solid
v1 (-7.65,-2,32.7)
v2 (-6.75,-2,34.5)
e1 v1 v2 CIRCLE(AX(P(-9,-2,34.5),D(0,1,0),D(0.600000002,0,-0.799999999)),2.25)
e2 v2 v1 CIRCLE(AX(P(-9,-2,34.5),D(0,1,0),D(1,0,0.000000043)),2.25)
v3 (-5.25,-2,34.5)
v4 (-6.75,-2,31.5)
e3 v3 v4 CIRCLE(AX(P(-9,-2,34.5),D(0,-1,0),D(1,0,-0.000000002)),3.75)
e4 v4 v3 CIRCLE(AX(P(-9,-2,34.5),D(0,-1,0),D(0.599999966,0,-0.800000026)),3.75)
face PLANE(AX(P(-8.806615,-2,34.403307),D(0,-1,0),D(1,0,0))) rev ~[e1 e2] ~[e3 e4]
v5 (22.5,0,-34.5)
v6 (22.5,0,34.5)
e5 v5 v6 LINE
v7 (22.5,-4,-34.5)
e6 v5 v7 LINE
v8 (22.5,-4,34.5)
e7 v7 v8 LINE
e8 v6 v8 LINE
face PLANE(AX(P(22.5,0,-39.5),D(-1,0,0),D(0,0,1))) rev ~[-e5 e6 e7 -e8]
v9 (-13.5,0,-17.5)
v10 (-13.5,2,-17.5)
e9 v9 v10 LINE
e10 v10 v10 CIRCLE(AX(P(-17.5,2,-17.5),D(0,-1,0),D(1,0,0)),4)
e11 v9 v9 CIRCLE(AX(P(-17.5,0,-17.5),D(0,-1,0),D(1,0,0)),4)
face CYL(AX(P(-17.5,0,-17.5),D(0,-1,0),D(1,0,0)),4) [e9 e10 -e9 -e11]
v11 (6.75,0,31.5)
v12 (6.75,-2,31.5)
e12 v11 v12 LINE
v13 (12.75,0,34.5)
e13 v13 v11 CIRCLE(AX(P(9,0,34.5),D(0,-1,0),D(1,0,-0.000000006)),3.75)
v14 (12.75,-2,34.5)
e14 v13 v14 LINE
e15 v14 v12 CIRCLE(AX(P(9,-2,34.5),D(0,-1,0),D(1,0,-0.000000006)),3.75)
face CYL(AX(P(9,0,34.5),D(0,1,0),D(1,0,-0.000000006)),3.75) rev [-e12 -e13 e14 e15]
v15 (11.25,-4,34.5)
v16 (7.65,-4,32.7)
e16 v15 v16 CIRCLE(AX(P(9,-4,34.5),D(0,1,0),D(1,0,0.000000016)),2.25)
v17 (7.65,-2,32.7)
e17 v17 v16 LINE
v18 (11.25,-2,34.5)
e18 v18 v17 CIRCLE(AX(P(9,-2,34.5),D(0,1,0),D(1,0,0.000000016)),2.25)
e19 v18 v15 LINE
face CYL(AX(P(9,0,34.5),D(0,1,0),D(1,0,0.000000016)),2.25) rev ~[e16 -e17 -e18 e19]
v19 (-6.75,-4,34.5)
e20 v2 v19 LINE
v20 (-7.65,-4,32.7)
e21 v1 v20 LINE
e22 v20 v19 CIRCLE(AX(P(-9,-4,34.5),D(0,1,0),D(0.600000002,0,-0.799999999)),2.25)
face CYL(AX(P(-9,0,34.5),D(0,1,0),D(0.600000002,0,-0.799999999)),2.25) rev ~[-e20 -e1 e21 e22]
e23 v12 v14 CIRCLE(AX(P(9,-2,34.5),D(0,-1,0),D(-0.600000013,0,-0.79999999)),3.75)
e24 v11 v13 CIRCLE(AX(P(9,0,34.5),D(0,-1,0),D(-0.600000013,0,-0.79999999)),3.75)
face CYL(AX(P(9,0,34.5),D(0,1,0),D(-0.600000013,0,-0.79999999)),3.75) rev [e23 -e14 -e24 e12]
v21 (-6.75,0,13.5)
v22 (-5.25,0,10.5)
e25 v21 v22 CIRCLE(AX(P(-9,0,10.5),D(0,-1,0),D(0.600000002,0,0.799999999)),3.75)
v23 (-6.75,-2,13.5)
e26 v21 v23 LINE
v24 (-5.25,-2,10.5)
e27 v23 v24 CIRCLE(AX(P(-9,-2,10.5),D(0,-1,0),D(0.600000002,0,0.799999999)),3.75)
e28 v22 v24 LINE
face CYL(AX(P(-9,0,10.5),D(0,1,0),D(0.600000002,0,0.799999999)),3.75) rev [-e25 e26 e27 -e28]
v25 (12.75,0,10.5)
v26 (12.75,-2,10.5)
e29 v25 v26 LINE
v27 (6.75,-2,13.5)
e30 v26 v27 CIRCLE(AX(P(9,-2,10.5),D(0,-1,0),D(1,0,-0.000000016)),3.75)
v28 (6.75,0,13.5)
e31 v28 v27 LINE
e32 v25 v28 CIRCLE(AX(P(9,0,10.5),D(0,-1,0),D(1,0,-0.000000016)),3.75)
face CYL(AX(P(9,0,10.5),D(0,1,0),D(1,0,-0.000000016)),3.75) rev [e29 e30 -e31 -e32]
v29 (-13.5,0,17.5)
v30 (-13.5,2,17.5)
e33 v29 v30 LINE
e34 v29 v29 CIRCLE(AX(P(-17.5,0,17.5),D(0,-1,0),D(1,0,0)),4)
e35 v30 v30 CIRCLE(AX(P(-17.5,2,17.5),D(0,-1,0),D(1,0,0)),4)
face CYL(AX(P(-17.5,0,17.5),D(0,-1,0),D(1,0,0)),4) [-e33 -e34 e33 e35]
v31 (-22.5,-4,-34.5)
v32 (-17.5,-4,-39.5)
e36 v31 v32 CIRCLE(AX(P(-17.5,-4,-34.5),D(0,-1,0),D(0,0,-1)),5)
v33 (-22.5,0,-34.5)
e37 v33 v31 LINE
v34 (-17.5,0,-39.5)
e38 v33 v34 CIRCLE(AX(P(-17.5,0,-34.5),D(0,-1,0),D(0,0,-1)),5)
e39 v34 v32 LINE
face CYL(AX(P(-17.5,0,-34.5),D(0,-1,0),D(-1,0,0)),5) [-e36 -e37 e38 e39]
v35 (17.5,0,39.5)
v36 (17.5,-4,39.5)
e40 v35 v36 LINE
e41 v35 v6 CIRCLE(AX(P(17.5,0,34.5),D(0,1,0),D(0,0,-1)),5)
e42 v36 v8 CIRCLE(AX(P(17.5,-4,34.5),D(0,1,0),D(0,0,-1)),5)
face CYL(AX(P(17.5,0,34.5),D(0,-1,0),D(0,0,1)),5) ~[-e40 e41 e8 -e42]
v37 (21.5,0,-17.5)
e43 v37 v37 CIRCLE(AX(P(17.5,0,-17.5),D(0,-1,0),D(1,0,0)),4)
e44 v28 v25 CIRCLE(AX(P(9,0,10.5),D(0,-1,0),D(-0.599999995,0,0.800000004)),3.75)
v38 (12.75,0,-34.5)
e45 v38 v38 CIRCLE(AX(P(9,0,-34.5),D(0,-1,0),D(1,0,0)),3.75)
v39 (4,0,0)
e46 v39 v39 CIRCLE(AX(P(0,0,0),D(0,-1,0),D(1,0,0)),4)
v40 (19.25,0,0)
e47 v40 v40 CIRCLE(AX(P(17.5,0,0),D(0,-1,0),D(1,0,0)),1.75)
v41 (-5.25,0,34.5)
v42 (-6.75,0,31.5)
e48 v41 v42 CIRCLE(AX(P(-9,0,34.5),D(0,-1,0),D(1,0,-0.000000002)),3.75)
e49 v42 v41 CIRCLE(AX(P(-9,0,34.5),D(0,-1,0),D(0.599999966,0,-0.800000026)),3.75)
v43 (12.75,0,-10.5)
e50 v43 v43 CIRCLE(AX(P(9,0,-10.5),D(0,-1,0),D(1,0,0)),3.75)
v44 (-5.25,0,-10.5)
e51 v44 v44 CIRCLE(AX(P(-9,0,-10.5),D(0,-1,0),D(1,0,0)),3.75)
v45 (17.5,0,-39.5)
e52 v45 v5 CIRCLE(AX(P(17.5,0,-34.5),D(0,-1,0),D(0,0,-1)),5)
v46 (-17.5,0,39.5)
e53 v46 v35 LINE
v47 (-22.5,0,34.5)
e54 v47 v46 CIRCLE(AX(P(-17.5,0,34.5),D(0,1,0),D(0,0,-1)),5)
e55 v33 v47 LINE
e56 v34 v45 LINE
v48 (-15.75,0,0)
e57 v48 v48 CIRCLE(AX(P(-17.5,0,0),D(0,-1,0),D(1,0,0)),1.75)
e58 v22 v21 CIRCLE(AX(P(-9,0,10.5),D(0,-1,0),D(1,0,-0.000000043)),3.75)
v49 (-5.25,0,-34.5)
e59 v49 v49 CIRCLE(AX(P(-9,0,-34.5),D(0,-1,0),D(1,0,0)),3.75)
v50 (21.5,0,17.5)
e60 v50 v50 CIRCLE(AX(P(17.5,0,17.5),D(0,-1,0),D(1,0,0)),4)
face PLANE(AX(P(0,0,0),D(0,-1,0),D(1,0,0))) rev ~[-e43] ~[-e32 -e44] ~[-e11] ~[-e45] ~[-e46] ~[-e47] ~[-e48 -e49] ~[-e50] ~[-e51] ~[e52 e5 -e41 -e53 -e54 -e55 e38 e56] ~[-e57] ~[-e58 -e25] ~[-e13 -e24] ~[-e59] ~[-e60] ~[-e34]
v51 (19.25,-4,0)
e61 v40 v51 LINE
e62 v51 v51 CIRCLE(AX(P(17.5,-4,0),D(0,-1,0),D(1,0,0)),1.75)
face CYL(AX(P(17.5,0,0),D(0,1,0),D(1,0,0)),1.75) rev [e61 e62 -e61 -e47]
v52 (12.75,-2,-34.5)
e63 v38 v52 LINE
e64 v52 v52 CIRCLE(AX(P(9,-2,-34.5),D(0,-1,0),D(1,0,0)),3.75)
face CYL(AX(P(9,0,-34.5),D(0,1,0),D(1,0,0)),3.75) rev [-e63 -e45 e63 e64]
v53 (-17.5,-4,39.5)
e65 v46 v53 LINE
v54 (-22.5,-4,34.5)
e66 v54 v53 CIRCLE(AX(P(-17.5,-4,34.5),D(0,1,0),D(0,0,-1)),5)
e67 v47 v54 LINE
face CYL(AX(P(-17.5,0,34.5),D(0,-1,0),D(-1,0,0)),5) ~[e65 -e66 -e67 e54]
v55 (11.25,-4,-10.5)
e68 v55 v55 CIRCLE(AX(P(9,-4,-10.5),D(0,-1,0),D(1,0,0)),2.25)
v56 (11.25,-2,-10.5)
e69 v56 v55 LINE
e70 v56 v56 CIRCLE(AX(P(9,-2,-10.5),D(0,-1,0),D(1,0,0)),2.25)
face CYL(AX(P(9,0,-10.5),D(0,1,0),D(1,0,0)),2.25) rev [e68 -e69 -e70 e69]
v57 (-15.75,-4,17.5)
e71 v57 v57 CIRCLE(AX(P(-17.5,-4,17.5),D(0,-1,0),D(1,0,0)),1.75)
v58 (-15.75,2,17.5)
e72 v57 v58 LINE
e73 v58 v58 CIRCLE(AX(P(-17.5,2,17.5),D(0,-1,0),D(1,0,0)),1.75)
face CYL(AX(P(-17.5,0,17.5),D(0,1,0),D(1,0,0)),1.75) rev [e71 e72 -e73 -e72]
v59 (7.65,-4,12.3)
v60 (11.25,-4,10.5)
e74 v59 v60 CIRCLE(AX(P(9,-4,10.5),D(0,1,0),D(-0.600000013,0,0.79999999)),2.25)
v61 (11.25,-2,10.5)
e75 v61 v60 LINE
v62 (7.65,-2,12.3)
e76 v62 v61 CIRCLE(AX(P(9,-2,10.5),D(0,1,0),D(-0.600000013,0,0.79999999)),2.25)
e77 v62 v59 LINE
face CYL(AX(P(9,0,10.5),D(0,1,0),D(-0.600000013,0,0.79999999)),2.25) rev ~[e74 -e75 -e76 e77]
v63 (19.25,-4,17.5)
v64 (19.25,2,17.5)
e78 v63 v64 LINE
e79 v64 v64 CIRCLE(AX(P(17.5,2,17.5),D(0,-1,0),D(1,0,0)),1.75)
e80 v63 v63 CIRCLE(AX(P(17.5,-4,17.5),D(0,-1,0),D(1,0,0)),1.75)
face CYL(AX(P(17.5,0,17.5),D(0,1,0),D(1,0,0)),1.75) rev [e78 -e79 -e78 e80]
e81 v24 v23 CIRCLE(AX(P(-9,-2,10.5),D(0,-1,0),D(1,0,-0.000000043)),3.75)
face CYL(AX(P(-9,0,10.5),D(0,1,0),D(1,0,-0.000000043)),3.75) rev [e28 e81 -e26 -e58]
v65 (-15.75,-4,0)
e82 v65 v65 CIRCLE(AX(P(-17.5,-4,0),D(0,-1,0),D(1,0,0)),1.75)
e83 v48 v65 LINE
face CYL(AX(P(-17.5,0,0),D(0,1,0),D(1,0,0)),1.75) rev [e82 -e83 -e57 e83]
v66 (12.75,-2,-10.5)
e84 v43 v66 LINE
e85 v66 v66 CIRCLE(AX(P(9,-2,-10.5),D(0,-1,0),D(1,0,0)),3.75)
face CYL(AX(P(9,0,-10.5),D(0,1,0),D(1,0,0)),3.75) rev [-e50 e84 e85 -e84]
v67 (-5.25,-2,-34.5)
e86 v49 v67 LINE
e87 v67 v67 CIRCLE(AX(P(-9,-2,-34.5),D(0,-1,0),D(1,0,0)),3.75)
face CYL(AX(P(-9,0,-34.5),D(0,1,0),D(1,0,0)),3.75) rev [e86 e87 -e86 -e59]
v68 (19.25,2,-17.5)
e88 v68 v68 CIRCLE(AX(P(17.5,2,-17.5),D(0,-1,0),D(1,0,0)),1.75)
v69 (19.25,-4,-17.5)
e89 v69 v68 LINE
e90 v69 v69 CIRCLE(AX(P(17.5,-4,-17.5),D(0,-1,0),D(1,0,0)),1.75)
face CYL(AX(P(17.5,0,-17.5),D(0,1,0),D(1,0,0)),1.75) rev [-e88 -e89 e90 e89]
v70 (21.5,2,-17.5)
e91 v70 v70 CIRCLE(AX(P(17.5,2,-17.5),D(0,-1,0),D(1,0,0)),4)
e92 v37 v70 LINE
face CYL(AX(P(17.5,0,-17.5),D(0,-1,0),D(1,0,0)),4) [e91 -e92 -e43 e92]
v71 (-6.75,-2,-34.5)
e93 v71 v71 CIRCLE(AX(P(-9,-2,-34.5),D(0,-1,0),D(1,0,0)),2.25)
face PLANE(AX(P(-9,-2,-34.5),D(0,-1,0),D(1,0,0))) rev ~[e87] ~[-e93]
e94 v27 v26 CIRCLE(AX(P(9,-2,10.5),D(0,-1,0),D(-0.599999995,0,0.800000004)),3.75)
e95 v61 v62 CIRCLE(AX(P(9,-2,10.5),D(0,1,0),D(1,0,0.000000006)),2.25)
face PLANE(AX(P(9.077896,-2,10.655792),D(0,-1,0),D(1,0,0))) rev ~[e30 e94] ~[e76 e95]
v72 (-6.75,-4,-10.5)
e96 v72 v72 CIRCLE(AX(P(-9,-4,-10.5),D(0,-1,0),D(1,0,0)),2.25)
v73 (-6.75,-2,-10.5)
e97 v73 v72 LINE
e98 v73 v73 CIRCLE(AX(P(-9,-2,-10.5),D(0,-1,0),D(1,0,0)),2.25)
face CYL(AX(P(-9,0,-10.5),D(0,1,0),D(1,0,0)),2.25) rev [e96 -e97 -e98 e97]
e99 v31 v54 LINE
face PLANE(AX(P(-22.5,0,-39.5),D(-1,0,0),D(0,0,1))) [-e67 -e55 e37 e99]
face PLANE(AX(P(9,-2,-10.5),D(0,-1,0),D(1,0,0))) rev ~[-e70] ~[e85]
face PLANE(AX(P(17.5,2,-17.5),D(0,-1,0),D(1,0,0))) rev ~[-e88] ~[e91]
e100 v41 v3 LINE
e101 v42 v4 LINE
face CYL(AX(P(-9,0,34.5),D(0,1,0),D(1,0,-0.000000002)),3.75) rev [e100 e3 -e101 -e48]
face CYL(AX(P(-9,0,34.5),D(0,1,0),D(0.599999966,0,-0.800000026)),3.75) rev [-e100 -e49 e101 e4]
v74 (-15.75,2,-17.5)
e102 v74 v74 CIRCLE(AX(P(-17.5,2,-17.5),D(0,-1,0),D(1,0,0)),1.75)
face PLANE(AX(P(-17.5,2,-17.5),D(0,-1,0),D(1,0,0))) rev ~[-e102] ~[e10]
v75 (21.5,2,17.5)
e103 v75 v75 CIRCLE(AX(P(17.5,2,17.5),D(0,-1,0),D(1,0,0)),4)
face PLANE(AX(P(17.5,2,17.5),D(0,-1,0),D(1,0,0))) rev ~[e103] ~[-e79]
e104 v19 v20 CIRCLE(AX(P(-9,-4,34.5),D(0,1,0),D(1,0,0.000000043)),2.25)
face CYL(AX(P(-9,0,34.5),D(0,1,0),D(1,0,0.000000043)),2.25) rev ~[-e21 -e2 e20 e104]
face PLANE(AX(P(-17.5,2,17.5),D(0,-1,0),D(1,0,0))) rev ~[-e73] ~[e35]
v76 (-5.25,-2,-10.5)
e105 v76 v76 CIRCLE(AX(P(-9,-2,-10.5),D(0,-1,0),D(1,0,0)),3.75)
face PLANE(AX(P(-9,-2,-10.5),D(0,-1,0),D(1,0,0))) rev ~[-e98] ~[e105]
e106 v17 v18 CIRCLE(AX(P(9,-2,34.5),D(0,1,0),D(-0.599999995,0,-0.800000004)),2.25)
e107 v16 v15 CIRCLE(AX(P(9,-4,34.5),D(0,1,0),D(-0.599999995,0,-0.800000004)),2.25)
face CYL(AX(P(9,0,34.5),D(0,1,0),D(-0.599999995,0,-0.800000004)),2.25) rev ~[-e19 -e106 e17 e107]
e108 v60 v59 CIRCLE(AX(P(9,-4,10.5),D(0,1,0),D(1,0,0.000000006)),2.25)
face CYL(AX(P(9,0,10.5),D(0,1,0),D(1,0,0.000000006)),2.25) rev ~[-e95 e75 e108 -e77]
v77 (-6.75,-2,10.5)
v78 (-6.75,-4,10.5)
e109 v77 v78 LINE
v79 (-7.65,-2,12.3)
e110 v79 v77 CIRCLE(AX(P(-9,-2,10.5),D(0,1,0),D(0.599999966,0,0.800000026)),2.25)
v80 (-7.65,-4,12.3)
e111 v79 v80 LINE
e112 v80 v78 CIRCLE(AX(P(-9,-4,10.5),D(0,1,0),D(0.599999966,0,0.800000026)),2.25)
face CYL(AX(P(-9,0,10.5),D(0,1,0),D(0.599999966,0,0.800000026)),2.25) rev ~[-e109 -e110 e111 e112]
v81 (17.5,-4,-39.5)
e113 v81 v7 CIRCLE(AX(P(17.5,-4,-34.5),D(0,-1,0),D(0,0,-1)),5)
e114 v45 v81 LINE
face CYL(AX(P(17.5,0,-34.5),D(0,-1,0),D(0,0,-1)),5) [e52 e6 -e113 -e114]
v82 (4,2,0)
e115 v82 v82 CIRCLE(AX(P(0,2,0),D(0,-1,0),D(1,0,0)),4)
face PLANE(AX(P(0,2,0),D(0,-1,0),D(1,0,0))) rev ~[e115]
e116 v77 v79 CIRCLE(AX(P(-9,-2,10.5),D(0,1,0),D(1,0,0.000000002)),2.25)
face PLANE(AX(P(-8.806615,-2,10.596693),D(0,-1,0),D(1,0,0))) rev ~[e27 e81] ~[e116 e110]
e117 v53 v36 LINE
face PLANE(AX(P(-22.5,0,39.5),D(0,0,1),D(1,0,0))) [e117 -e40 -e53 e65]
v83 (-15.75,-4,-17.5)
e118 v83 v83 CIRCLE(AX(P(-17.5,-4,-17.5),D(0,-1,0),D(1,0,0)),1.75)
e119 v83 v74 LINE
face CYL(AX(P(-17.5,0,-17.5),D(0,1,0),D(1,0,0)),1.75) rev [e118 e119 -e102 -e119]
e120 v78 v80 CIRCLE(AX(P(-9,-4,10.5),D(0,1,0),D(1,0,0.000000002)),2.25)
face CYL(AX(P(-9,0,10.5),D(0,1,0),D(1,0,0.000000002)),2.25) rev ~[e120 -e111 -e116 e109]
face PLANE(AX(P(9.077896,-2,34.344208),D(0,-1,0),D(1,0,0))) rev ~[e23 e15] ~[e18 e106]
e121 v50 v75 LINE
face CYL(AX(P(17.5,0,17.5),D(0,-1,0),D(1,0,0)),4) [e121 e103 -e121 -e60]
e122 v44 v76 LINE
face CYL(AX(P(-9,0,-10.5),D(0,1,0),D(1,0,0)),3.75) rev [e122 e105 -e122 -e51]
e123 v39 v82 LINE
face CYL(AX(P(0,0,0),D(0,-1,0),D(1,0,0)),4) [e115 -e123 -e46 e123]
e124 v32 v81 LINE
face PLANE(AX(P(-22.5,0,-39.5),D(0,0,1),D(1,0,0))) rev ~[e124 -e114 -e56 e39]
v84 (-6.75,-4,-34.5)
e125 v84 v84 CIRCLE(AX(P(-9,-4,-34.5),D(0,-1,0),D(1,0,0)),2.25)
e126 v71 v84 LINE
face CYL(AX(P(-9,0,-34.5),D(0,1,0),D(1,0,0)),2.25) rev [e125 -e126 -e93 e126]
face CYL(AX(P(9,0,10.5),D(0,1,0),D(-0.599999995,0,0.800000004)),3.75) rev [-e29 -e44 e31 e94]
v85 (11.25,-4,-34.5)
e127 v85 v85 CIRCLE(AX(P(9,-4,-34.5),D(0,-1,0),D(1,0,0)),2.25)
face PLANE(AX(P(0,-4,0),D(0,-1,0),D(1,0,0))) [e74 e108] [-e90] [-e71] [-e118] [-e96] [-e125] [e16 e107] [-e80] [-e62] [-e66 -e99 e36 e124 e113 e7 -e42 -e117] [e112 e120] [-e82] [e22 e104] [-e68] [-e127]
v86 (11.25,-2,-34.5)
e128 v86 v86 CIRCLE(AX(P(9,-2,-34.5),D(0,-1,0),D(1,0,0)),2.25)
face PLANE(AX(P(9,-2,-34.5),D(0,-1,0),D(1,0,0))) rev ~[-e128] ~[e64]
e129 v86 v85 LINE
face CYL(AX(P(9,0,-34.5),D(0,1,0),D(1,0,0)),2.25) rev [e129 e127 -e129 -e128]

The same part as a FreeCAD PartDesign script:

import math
import FreeCAD as App
import Part
import Sketcher

V = App.Vector


def edges_at(feature, points):
    """Names of the edges that pass closest to the given points."""
    edges = feature.Shape.Edges
    near = lambda p: min(range(len(edges)), key=lambda i: edges[i].distToShape(Part.Vertex(*p))[0])
    return sorted({f"Edge{near(p) + 1}" for p in points})


def add_polygon(sketch, points):
    """Adds a closed chain of lines whose ends are joined by coincident constraints."""
    first, n = sketch.GeometryCount, len(points)
    for a, b in zip(points, points[1:] + points[:1]):
        sketch.addGeometry(Part.LineSegment(App.Vector(*a, 0), App.Vector(*b, 0)), False)
    for i in range(n):
        sketch.addConstraint(Sketcher.Constraint("Coincident", first + i, 2, first + (i + 1) % n, 1))

doc = App.newDocument("Part")
body = doc.addObject("PartDesign::Body", "Body")

sketch1 = body.newObject("Sketcher::SketchObject", "Sketch")
sketch1.AttachmentSupport = (doc.getObject("XZ_Plane"), [""])
sketch1.MapMode = "FlatFace"
add_polygon(sketch1, [(-22.5, 39.5), (-22.5, -39.5), (22.5, -39.5), (22.5, 39.5)])
sketch1.addGeometry(Part.Circle(V(-9, -34.5, 0), V(0, 0, 1), 2.2), False)
sketch1.addGeometry(Part.Circle(V(-17.5, -17.5, 0), V(0, 0, 1), 1.8), False)
sketch1.addGeometry(Part.Circle(V(-17.5, 0, 0), V(0, 0, 1), 1.8), False)
sketch1.addGeometry(Part.Circle(V(-9, -10.5, 0), V(0, 0, 1), 2.2), False)
sketch1.addGeometry(Part.Circle(V(9, -34.5, 0), V(0, 0, 1), 2.2), False)
sketch1.addGeometry(Part.Circle(V(9, -10.5, 0), V(0, 0, 1), 2.2), False)
sketch1.addGeometry(Part.Circle(V(17.5, -17.5, 0), V(0, 0, 1), 1.8), False)
sketch1.addGeometry(Part.Circle(V(17.5, 0, 0), V(0, 0, 1), 1.8), False)
sketch1.addGeometry(Part.Circle(V(-17.5, 17.5, 0), V(0, 0, 1), 1.8), False)
sketch1.addGeometry(Part.ArcOfCircle(Part.Circle(V(-9, 10.5, 0), V(0, 0, 1), 2.2), math.radians(0), math.radians(53)), False)
sketch1.addGeometry(Part.ArcOfCircle(Part.Circle(V(-9, 10.5, 0), V(0, 0, 1), 2.3), math.radians(53), math.radians(360)), False)
sketch1.addGeometry(Part.ArcOfCircle(Part.Circle(V(-9, 34.5, 0), V(0, 0, 1), 2.2), math.radians(-53), math.radians(0)), False)
sketch1.addGeometry(Part.ArcOfCircle(Part.Circle(V(-9, 34.5, 0), V(0, 0, 1), 2.3), math.radians(0), math.radians(307)), False)
sketch1.addGeometry(Part.ArcOfCircle(Part.Circle(V(9, 10.5, 0), V(0, 0, 1), 2.2), math.radians(0), math.radians(127)), False)
sketch1.addGeometry(Part.ArcOfCircle(Part.Circle(V(9, 10.5, 0), V(0, 0, 1), 2.3), math.radians(127), math.radians(360)), False)
sketch1.addGeometry(Part.Circle(V(17.5, 17.5, 0), V(0, 0, 1), 1.8), False)
sketch1.addGeometry(Part.ArcOfCircle(Part.Circle(V(9, 34.5, 0), V(0, 0, 1), 2.3), math.radians(0), math.radians(233)), False)
sketch1.addGeometry(Part.ArcOfCircle(Part.Circle(V(9, 34.5, 0), V(0, 0, 1), 2.2), math.radians(-127), math.radians(0)), False)
sketch1.addConstraint(Sketcher.Constraint("Tangent", 13, 1, 14, 2))
sketch1.addConstraint(Sketcher.Constraint("Coincident", 14, 1, 13, 2))
sketch1.addConstraint(Sketcher.Constraint("Tangent", 15, 1, 16, 2))
sketch1.addConstraint(Sketcher.Constraint("Coincident", 16, 1, 15, 2))
sketch1.addConstraint(Sketcher.Constraint("Tangent", 17, 1, 18, 2))
sketch1.addConstraint(Sketcher.Constraint("Coincident", 18, 1, 17, 2))
sketch1.addConstraint(Sketcher.Constraint("Tangent", 20, 1, 21, 2))
sketch1.addConstraint(Sketcher.Constraint("Coincident", 21, 1, 20, 2))
sketch1.addConstraint(Sketcher.Constraint("Vertical", 0))
sketch1.addConstraint(Sketcher.Constraint("Horizontal", 1))
sketch1.addConstraint(Sketcher.Constraint("Vertical", 2))
sketch1.addConstraint(Sketcher.Constraint("Horizontal", 3))
sketch1.addConstraint(Sketcher.Constraint("Equal", 5, 6))
sketch1.addConstraint(Sketcher.Constraint("Equal", 4, 7))
sketch1.addConstraint(Sketcher.Constraint("Equal", 7, 8))
sketch1.addConstraint(Sketcher.Constraint("Equal", 8, 9))
sketch1.addConstraint(Sketcher.Constraint("Equal", 6, 10))
sketch1.addConstraint(Sketcher.Constraint("Equal", 10, 11))
sketch1.addConstraint(Sketcher.Constraint("Equal", 11, 12))
sketch1.addConstraint(Sketcher.Constraint("Equal", 9, 13))
sketch1.addConstraint(Sketcher.Constraint("Equal", 14, 15))
sketch1.addConstraint(Sketcher.Constraint("Equal", 16, 17))
sketch1.addConstraint(Sketcher.Constraint("Equal", 12, 19))
sketch1.addConstraint(Sketcher.Constraint("Equal", 18, 20))
sketch1.addConstraint(Sketcher.Constraint("Symmetric", 6, 3, 11, 3, -1, 1))
sketch1.addConstraint(Sketcher.Constraint("Symmetric", 10, 3, 12, 3, -1, 1))
sketch1.addConstraint(Sketcher.Constraint("Symmetric", 9, 3, 13, 3, -1, 1))
sketch1.addConstraint(Sketcher.Constraint("Symmetric", 8, 3, 15, 3, -1, 1))
sketch1.addConstraint(Sketcher.Constraint("Symmetric", 7, 3, 17, 3, -1, 1))
sketch1.addConstraint(Sketcher.Constraint("Symmetric", 5, 3, 19, 3, -1, 1))
sketch1.addConstraint(Sketcher.Constraint("Symmetric", 4, 3, 20, 3, -1, 1))
sketch1.addConstraint(Sketcher.Constraint("Symmetric", 0, 2, 2, 2, -1, 1))
sketch1.addConstraint(Sketcher.Constraint("Symmetric", 4, 3, 8, 3, -2))
sketch1.addConstraint(Sketcher.Constraint("Symmetric", 7, 3, 9, 3, -2))
sketch1.addConstraint(Sketcher.Constraint("Symmetric", 5, 3, 10, 3, -2))
sketch1.addConstraint(Sketcher.Constraint("PointOnObject", 6, 3, -1))
sketch1.addConstraint(Sketcher.Constraint("Horizontal", 18, 3, 13, 1))
sketch1.addConstraint(Sketcher.Constraint("Horizontal", 21, 3, 16, 1))
sketch1.addConstraint(Sketcher.Constraint("Horizontal", 13, 1, 17, 1))
sketch1.addConstraint(Sketcher.Constraint("Horizontal", 14, 1, 18, 1))
sketch1.addConstraint(Sketcher.Constraint("Horizontal", 16, 1, 20, 1))
sketch1.addConstraint(Sketcher.Constraint("Horizontal", 15, 1, 21, 1))
sketch1.addConstraint(Sketcher.Constraint("Vertical", 5, 3, 6, 3))
sketch1.addConstraint(Sketcher.Constraint("Vertical", 4, 3, 7, 3))
sketch1.addConstraint(Sketcher.Constraint("Vertical", 14, 1, 15, 1))
sketch1.addConstraint(Sketcher.Constraint("Diameter", 4, 4.5))
sketch1.addConstraint(Sketcher.Constraint("Diameter", 5, 3.5))
sketch1.addConstraint(Sketcher.Constraint("DistanceX", 1, 1, 1, 2, 45.0))
sketch1.addConstraint(Sketcher.Constraint("DistanceY", 0, 2, 0, 1, 79.0))
sketch1.addConstraint(Sketcher.Constraint("DistanceX", 4, 3, -1, 1, 9.0))
sketch1.addConstraint(Sketcher.Constraint("DistanceY", 4, 3, 5, 3, 17.0))
sketch1.addConstraint(Sketcher.Constraint("DistanceY", 5, 3, 7, 3, 7.0))
sketch1.addConstraint(Sketcher.Constraint("DistanceX", 5, 3, 10, 3, 35.0))
sketch1.addConstraint(Sketcher.Constraint("DistanceY", 7, 3, 12, 3, 28.0))
sketch1.addConstraint(Sketcher.Constraint("DistanceY", -1, 1, 14, 1, 12.3))
pad1 = body.newObject("PartDesign::Pad", "Pad")
pad1.Profile = sketch1
pad1.Length = 4

sketch2 = body.newObject("Sketcher::SketchObject", "Sketch001")
sketch2.AttachmentSupport = (doc.getObject("XZ_Plane"), [""])
sketch2.MapMode = "FlatFace"
sketch2.addGeometry(Part.Circle(V(-17.5, 17.5, 0), V(0, 0, 1), 4), False)
sketch2.addGeometry(Part.Circle(V(-17.5, 17.5, 0), V(0, 0, 1), 1.8), False)
sketch2.addGeometry(Part.Circle(V(17.5, 17.5, 0), V(0, 0, 1), 4), False)
sketch2.addGeometry(Part.Circle(V(17.5, 17.5, 0), V(0, 0, 1), 1.8), False)
sketch2.addGeometry(Part.Circle(V(0, 0, 0), V(0, 0, 1), 4), False)
sketch2.addGeometry(Part.Circle(V(-17.5, -17.5, 0), V(0, 0, 1), 4), False)
sketch2.addGeometry(Part.Circle(V(-17.5, -17.5, 0), V(0, 0, 1), 1.8), False)
sketch2.addGeometry(Part.Circle(V(17.5, -17.5, 0), V(0, 0, 1), 4), False)
sketch2.addGeometry(Part.Circle(V(17.5, -17.5, 0), V(0, 0, 1), 1.8), False)
sketch2.addConstraint(Sketcher.Constraint("Coincident", 4, 3, -1, 1))
sketch2.addConstraint(Sketcher.Constraint("Coincident", 1, 3, 0, 3))
sketch2.addConstraint(Sketcher.Constraint("Coincident", 3, 3, 2, 3))
sketch2.addConstraint(Sketcher.Constraint("Coincident", 6, 3, 5, 3))
sketch2.addConstraint(Sketcher.Constraint("Coincident", 8, 3, 7, 3))
sketch2.addConstraint(Sketcher.Constraint("Equal", 0, 2))
sketch2.addConstraint(Sketcher.Constraint("Equal", 1, 3))
sketch2.addConstraint(Sketcher.Constraint("Equal", 2, 4))
sketch2.addConstraint(Sketcher.Constraint("Equal", 4, 5))
sketch2.addConstraint(Sketcher.Constraint("Equal", 3, 6))
sketch2.addConstraint(Sketcher.Constraint("Equal", 5, 7))
sketch2.addConstraint(Sketcher.Constraint("Equal", 6, 8))
sketch2.addConstraint(Sketcher.Constraint("Symmetric", 2, 3, 5, 3, -1, 1))
sketch2.addConstraint(Sketcher.Constraint("Symmetric", 0, 3, 7, 3, -1, 1))
sketch2.addConstraint(Sketcher.Constraint("Symmetric", 0, 3, 2, 3, -2))
sketch2.addConstraint(Sketcher.Constraint("Diameter", 0, 8.0))
sketch2.addConstraint(Sketcher.Constraint("Diameter", 1, 3.5))
sketch2.addConstraint(Sketcher.Constraint("DistanceX", 0, 3, 2, 3, 35.0))
sketch2.addConstraint(Sketcher.Constraint("DistanceY", 5, 3, 0, 3, 35.0))
pad2 = body.newObject("PartDesign::Pad", "Pad001")
pad2.Profile = sketch2
pad2.Length = 2
pad2.Reversed = True
doc.recompute()

fillet = body.newObject("PartDesign::Fillet", "Fillet")
fillet.Base = (pad2, edges_at(pad2, [
    (-22.5, -2, 39.5),
    (-22.5, -2, -39.5),
    (22.5, -2, -39.5),
    (22.5, -2, 39.5),
]))
fillet.Radius = 5

sketch3 = body.newObject("Sketcher::SketchObject", "Sketch002")
sketch3.AttachmentSupport = (doc.getObject("XZ_Plane"), [""])
sketch3.MapMode = "FlatFace"
sketch3.addGeometry(Part.ArcOfCircle(Part.Circle(V(-9, 34.5, 0), V(0, 0, 1), 3.8), math.radians(0), math.radians(307)), False)
sketch3.addGeometry(Part.ArcOfCircle(Part.Circle(V(-9, 34.5, 0), V(0, 0, 1), 3.7), math.radians(-53), math.radians(0)), False)
sketch3.addGeometry(Part.ArcOfCircle(Part.Circle(V(-9, 34.5, 0), V(0, 0, 1), 2.2), math.radians(-53), math.radians(0)), False)
sketch3.addGeometry(Part.ArcOfCircle(Part.Circle(V(-9, 34.5, 0), V(0, 0, 1), 2.3), math.radians(0), math.radians(307)), False)
sketch3.addGeometry(Part.ArcOfCircle(Part.Circle(V(-9, 10.5, 0), V(0, 0, 1), 3.7), math.radians(0), math.radians(53)), False)
sketch3.addGeometry(Part.ArcOfCircle(Part.Circle(V(-9, 10.5, 0), V(0, 0, 1), 3.8), math.radians(53), math.radians(360)), False)
sketch3.addGeometry(Part.ArcOfCircle(Part.Circle(V(-9, 10.5, 0), V(0, 0, 1), 2.2), math.radians(0), math.radians(53)), False)
sketch3.addGeometry(Part.ArcOfCircle(Part.Circle(V(-9, 10.5, 0), V(0, 0, 1), 2.3), math.radians(53), math.radians(360)), False)
sketch3.addGeometry(Part.ArcOfCircle(Part.Circle(V(9, 10.5, 0), V(0, 0, 1), 3.7), math.radians(0), math.radians(127)), False)
sketch3.addGeometry(Part.ArcOfCircle(Part.Circle(V(9, 10.5, 0), V(0, 0, 1), 3.8), math.radians(127), math.radians(360)), False)
sketch3.addGeometry(Part.ArcOfCircle(Part.Circle(V(9, 10.5, 0), V(0, 0, 1), 2.2), math.radians(0), math.radians(127)), False)
sketch3.addGeometry(Part.ArcOfCircle(Part.Circle(V(9, 10.5, 0), V(0, 0, 1), 2.3), math.radians(127), math.radians(360)), False)
sketch3.addGeometry(Part.ArcOfCircle(Part.Circle(V(9, 34.5, 0), V(0, 0, 1), 3.8), math.radians(0), math.radians(233)), False)
sketch3.addGeometry(Part.ArcOfCircle(Part.Circle(V(9, 34.5, 0), V(0, 0, 1), 3.7), math.radians(-127), math.radians(0)), False)
sketch3.addGeometry(Part.ArcOfCircle(Part.Circle(V(9, 34.5, 0), V(0, 0, 1), 2.3), math.radians(0), math.radians(233)), False)
sketch3.addGeometry(Part.ArcOfCircle(Part.Circle(V(9, 34.5, 0), V(0, 0, 1), 2.2), math.radians(-127), math.radians(0)), False)
sketch3.addGeometry(Part.Circle(V(-9, -10.5, 0), V(0, 0, 1), 3.8), False)
sketch3.addGeometry(Part.Circle(V(-9, -10.5, 0), V(0, 0, 1), 2.2), False)
sketch3.addGeometry(Part.Circle(V(9, -10.5, 0), V(0, 0, 1), 3.8), False)
sketch3.addGeometry(Part.Circle(V(9, -10.5, 0), V(0, 0, 1), 2.2), False)
sketch3.addGeometry(Part.Circle(V(9, -34.5, 0), V(0, 0, 1), 3.8), False)
sketch3.addGeometry(Part.Circle(V(9, -34.5, 0), V(0, 0, 1), 2.2), False)
sketch3.addGeometry(Part.Circle(V(-9, -34.5, 0), V(0, 0, 1), 3.8), False)
sketch3.addGeometry(Part.Circle(V(-9, -34.5, 0), V(0, 0, 1), 2.2), False)
sketch3.addConstraint(Sketcher.Constraint("Tangent", 0, 1, 1, 2))
sketch3.addConstraint(Sketcher.Constraint("Coincident", 1, 1, 0, 2))
sketch3.addConstraint(Sketcher.Constraint("Tangent", 2, 1, 3, 2))
sketch3.addConstraint(Sketcher.Constraint("Coincident", 3, 1, 2, 2))
sketch3.addConstraint(Sketcher.Constraint("Tangent", 4, 1, 5, 2))
sketch3.addConstraint(Sketcher.Constraint("Coincident", 5, 1, 4, 2))
sketch3.addConstraint(Sketcher.Constraint("Tangent", 6, 1, 7, 2))
sketch3.addConstraint(Sketcher.Constraint("Coincident", 7, 1, 6, 2))
sketch3.addConstraint(Sketcher.Constraint("Tangent", 8, 1, 9, 2))
sketch3.addConstraint(Sketcher.Constraint("Coincident", 9, 1, 8, 2))
sketch3.addConstraint(Sketcher.Constraint("Tangent", 10, 1, 11, 2))
sketch3.addConstraint(Sketcher.Constraint("Coincident", 11, 1, 10, 2))
sketch3.addConstraint(Sketcher.Constraint("Tangent", 12, 1, 13, 2))
sketch3.addConstraint(Sketcher.Constraint("Coincident", 13, 1, 12, 2))
sketch3.addConstraint(Sketcher.Constraint("Tangent", 14, 1, 15, 2))
sketch3.addConstraint(Sketcher.Constraint("Coincident", 15, 1, 14, 2))
sketch3.addConstraint(Sketcher.Constraint("Coincident", 2, 3, 0, 3))
sketch3.addConstraint(Sketcher.Constraint("Coincident", 6, 3, 4, 3))
sketch3.addConstraint(Sketcher.Constraint("Coincident", 10, 3, 8, 3))
sketch3.addConstraint(Sketcher.Constraint("Coincident", 14, 3, 12, 3))
sketch3.addConstraint(Sketcher.Constraint("Coincident", 17, 3, 16, 3))
sketch3.addConstraint(Sketcher.Constraint("Coincident", 19, 3, 18, 3))
sketch3.addConstraint(Sketcher.Constraint("Coincident", 21, 3, 20, 3))
sketch3.addConstraint(Sketcher.Constraint("Coincident", 23, 3, 22, 3))
sketch3.addConstraint(Sketcher.Constraint("Equal", 1, 4))
sketch3.addConstraint(Sketcher.Constraint("Equal", 3, 6))
sketch3.addConstraint(Sketcher.Constraint("Equal", 5, 8))
sketch3.addConstraint(Sketcher.Constraint("Equal", 7, 10))
sketch3.addConstraint(Sketcher.Constraint("Equal", 9, 12))
sketch3.addConstraint(Sketcher.Constraint("Equal", 11, 14))
sketch3.addConstraint(Sketcher.Constraint("Equal", 13, 16))
sketch3.addConstraint(Sketcher.Constraint("Equal", 15, 17))
sketch3.addConstraint(Sketcher.Constraint("Equal", 16, 18))
sketch3.addConstraint(Sketcher.Constraint("Equal", 17, 19))
sketch3.addConstraint(Sketcher.Constraint("Equal", 18, 20))
sketch3.addConstraint(Sketcher.Constraint("Equal", 19, 21))
sketch3.addConstraint(Sketcher.Constraint("Equal", 20, 22))
sketch3.addConstraint(Sketcher.Constraint("Equal", 21, 23))
sketch3.addConstraint(Sketcher.Constraint("Symmetric", 8, 3, 16, 3, -1, 1))
sketch3.addConstraint(Sketcher.Constraint("Symmetric", 4, 3, 18, 3, -1, 1))
sketch3.addConstraint(Sketcher.Constraint("Symmetric", 0, 3, 20, 3, -1, 1))
sketch3.addConstraint(Sketcher.Constraint("Symmetric", 12, 3, 22, 3, -1, 1))
sketch3.addConstraint(Sketcher.Constraint("Symmetric", 4, 3, 8, 3, -2))
sketch3.addConstraint(Sketcher.Constraint("Symmetric", 0, 3, 12, 3, -2))
sketch3.addConstraint(Sketcher.Constraint("Horizontal", 15, 3, 0, 1))
sketch3.addConstraint(Sketcher.Constraint("Horizontal", 0, 1, 3, 1))
sketch3.addConstraint(Sketcher.Constraint("Horizontal", 11, 3, 4, 1))
sketch3.addConstraint(Sketcher.Constraint("Horizontal", 4, 1, 6, 1))
sketch3.addConstraint(Sketcher.Constraint("Horizontal", 6, 1, 8, 1))
sketch3.addConstraint(Sketcher.Constraint("Horizontal", 5, 1, 9, 1))
sketch3.addConstraint(Sketcher.Constraint("Horizontal", 8, 1, 10, 1))
sketch3.addConstraint(Sketcher.Constraint("Horizontal", 7, 1, 11, 1))
sketch3.addConstraint(Sketcher.Constraint("Horizontal", 3, 1, 12, 1))
sketch3.addConstraint(Sketcher.Constraint("Horizontal", 1, 1, 13, 1))
sketch3.addConstraint(Sketcher.Constraint("Horizontal", 12, 1, 14, 1))
sketch3.addConstraint(Sketcher.Constraint("Horizontal", 2, 1, 15, 1))
sketch3.addConstraint(Sketcher.Constraint("Vertical", 3, 3, 4, 3))
sketch3.addConstraint(Sketcher.Constraint("Vertical", 1, 1, 3, 1))
sketch3.addConstraint(Sketcher.Constraint("Vertical", 3, 1, 5, 1))
sketch3.addConstraint(Sketcher.Constraint("Vertical", 2, 1, 7, 1))
sketch3.addConstraint(Sketcher.Constraint("Diameter", 16, 7.5))
sketch3.addConstraint(Sketcher.Constraint("Diameter", 17, 4.5))
sketch3.addConstraint(Sketcher.Constraint("DistanceX", 0, 3, -1, 1, 9.0))
sketch3.addConstraint(Sketcher.Constraint("DistanceY", 4, 3, 1, 3, 24.0))
sketch3.addConstraint(Sketcher.Constraint("DistanceY", 16, 3, 5, 3, 21.0))
sketch3.addConstraint(Sketcher.Constraint("DistanceY", -1, 1, 2, 1, 32.7))
pocket1 = body.newObject("PartDesign::Pocket", "Pocket")
pocket1.Profile = sketch3
pocket1.Length = 2
pocket1.Reversed = True

doc.recompute()
